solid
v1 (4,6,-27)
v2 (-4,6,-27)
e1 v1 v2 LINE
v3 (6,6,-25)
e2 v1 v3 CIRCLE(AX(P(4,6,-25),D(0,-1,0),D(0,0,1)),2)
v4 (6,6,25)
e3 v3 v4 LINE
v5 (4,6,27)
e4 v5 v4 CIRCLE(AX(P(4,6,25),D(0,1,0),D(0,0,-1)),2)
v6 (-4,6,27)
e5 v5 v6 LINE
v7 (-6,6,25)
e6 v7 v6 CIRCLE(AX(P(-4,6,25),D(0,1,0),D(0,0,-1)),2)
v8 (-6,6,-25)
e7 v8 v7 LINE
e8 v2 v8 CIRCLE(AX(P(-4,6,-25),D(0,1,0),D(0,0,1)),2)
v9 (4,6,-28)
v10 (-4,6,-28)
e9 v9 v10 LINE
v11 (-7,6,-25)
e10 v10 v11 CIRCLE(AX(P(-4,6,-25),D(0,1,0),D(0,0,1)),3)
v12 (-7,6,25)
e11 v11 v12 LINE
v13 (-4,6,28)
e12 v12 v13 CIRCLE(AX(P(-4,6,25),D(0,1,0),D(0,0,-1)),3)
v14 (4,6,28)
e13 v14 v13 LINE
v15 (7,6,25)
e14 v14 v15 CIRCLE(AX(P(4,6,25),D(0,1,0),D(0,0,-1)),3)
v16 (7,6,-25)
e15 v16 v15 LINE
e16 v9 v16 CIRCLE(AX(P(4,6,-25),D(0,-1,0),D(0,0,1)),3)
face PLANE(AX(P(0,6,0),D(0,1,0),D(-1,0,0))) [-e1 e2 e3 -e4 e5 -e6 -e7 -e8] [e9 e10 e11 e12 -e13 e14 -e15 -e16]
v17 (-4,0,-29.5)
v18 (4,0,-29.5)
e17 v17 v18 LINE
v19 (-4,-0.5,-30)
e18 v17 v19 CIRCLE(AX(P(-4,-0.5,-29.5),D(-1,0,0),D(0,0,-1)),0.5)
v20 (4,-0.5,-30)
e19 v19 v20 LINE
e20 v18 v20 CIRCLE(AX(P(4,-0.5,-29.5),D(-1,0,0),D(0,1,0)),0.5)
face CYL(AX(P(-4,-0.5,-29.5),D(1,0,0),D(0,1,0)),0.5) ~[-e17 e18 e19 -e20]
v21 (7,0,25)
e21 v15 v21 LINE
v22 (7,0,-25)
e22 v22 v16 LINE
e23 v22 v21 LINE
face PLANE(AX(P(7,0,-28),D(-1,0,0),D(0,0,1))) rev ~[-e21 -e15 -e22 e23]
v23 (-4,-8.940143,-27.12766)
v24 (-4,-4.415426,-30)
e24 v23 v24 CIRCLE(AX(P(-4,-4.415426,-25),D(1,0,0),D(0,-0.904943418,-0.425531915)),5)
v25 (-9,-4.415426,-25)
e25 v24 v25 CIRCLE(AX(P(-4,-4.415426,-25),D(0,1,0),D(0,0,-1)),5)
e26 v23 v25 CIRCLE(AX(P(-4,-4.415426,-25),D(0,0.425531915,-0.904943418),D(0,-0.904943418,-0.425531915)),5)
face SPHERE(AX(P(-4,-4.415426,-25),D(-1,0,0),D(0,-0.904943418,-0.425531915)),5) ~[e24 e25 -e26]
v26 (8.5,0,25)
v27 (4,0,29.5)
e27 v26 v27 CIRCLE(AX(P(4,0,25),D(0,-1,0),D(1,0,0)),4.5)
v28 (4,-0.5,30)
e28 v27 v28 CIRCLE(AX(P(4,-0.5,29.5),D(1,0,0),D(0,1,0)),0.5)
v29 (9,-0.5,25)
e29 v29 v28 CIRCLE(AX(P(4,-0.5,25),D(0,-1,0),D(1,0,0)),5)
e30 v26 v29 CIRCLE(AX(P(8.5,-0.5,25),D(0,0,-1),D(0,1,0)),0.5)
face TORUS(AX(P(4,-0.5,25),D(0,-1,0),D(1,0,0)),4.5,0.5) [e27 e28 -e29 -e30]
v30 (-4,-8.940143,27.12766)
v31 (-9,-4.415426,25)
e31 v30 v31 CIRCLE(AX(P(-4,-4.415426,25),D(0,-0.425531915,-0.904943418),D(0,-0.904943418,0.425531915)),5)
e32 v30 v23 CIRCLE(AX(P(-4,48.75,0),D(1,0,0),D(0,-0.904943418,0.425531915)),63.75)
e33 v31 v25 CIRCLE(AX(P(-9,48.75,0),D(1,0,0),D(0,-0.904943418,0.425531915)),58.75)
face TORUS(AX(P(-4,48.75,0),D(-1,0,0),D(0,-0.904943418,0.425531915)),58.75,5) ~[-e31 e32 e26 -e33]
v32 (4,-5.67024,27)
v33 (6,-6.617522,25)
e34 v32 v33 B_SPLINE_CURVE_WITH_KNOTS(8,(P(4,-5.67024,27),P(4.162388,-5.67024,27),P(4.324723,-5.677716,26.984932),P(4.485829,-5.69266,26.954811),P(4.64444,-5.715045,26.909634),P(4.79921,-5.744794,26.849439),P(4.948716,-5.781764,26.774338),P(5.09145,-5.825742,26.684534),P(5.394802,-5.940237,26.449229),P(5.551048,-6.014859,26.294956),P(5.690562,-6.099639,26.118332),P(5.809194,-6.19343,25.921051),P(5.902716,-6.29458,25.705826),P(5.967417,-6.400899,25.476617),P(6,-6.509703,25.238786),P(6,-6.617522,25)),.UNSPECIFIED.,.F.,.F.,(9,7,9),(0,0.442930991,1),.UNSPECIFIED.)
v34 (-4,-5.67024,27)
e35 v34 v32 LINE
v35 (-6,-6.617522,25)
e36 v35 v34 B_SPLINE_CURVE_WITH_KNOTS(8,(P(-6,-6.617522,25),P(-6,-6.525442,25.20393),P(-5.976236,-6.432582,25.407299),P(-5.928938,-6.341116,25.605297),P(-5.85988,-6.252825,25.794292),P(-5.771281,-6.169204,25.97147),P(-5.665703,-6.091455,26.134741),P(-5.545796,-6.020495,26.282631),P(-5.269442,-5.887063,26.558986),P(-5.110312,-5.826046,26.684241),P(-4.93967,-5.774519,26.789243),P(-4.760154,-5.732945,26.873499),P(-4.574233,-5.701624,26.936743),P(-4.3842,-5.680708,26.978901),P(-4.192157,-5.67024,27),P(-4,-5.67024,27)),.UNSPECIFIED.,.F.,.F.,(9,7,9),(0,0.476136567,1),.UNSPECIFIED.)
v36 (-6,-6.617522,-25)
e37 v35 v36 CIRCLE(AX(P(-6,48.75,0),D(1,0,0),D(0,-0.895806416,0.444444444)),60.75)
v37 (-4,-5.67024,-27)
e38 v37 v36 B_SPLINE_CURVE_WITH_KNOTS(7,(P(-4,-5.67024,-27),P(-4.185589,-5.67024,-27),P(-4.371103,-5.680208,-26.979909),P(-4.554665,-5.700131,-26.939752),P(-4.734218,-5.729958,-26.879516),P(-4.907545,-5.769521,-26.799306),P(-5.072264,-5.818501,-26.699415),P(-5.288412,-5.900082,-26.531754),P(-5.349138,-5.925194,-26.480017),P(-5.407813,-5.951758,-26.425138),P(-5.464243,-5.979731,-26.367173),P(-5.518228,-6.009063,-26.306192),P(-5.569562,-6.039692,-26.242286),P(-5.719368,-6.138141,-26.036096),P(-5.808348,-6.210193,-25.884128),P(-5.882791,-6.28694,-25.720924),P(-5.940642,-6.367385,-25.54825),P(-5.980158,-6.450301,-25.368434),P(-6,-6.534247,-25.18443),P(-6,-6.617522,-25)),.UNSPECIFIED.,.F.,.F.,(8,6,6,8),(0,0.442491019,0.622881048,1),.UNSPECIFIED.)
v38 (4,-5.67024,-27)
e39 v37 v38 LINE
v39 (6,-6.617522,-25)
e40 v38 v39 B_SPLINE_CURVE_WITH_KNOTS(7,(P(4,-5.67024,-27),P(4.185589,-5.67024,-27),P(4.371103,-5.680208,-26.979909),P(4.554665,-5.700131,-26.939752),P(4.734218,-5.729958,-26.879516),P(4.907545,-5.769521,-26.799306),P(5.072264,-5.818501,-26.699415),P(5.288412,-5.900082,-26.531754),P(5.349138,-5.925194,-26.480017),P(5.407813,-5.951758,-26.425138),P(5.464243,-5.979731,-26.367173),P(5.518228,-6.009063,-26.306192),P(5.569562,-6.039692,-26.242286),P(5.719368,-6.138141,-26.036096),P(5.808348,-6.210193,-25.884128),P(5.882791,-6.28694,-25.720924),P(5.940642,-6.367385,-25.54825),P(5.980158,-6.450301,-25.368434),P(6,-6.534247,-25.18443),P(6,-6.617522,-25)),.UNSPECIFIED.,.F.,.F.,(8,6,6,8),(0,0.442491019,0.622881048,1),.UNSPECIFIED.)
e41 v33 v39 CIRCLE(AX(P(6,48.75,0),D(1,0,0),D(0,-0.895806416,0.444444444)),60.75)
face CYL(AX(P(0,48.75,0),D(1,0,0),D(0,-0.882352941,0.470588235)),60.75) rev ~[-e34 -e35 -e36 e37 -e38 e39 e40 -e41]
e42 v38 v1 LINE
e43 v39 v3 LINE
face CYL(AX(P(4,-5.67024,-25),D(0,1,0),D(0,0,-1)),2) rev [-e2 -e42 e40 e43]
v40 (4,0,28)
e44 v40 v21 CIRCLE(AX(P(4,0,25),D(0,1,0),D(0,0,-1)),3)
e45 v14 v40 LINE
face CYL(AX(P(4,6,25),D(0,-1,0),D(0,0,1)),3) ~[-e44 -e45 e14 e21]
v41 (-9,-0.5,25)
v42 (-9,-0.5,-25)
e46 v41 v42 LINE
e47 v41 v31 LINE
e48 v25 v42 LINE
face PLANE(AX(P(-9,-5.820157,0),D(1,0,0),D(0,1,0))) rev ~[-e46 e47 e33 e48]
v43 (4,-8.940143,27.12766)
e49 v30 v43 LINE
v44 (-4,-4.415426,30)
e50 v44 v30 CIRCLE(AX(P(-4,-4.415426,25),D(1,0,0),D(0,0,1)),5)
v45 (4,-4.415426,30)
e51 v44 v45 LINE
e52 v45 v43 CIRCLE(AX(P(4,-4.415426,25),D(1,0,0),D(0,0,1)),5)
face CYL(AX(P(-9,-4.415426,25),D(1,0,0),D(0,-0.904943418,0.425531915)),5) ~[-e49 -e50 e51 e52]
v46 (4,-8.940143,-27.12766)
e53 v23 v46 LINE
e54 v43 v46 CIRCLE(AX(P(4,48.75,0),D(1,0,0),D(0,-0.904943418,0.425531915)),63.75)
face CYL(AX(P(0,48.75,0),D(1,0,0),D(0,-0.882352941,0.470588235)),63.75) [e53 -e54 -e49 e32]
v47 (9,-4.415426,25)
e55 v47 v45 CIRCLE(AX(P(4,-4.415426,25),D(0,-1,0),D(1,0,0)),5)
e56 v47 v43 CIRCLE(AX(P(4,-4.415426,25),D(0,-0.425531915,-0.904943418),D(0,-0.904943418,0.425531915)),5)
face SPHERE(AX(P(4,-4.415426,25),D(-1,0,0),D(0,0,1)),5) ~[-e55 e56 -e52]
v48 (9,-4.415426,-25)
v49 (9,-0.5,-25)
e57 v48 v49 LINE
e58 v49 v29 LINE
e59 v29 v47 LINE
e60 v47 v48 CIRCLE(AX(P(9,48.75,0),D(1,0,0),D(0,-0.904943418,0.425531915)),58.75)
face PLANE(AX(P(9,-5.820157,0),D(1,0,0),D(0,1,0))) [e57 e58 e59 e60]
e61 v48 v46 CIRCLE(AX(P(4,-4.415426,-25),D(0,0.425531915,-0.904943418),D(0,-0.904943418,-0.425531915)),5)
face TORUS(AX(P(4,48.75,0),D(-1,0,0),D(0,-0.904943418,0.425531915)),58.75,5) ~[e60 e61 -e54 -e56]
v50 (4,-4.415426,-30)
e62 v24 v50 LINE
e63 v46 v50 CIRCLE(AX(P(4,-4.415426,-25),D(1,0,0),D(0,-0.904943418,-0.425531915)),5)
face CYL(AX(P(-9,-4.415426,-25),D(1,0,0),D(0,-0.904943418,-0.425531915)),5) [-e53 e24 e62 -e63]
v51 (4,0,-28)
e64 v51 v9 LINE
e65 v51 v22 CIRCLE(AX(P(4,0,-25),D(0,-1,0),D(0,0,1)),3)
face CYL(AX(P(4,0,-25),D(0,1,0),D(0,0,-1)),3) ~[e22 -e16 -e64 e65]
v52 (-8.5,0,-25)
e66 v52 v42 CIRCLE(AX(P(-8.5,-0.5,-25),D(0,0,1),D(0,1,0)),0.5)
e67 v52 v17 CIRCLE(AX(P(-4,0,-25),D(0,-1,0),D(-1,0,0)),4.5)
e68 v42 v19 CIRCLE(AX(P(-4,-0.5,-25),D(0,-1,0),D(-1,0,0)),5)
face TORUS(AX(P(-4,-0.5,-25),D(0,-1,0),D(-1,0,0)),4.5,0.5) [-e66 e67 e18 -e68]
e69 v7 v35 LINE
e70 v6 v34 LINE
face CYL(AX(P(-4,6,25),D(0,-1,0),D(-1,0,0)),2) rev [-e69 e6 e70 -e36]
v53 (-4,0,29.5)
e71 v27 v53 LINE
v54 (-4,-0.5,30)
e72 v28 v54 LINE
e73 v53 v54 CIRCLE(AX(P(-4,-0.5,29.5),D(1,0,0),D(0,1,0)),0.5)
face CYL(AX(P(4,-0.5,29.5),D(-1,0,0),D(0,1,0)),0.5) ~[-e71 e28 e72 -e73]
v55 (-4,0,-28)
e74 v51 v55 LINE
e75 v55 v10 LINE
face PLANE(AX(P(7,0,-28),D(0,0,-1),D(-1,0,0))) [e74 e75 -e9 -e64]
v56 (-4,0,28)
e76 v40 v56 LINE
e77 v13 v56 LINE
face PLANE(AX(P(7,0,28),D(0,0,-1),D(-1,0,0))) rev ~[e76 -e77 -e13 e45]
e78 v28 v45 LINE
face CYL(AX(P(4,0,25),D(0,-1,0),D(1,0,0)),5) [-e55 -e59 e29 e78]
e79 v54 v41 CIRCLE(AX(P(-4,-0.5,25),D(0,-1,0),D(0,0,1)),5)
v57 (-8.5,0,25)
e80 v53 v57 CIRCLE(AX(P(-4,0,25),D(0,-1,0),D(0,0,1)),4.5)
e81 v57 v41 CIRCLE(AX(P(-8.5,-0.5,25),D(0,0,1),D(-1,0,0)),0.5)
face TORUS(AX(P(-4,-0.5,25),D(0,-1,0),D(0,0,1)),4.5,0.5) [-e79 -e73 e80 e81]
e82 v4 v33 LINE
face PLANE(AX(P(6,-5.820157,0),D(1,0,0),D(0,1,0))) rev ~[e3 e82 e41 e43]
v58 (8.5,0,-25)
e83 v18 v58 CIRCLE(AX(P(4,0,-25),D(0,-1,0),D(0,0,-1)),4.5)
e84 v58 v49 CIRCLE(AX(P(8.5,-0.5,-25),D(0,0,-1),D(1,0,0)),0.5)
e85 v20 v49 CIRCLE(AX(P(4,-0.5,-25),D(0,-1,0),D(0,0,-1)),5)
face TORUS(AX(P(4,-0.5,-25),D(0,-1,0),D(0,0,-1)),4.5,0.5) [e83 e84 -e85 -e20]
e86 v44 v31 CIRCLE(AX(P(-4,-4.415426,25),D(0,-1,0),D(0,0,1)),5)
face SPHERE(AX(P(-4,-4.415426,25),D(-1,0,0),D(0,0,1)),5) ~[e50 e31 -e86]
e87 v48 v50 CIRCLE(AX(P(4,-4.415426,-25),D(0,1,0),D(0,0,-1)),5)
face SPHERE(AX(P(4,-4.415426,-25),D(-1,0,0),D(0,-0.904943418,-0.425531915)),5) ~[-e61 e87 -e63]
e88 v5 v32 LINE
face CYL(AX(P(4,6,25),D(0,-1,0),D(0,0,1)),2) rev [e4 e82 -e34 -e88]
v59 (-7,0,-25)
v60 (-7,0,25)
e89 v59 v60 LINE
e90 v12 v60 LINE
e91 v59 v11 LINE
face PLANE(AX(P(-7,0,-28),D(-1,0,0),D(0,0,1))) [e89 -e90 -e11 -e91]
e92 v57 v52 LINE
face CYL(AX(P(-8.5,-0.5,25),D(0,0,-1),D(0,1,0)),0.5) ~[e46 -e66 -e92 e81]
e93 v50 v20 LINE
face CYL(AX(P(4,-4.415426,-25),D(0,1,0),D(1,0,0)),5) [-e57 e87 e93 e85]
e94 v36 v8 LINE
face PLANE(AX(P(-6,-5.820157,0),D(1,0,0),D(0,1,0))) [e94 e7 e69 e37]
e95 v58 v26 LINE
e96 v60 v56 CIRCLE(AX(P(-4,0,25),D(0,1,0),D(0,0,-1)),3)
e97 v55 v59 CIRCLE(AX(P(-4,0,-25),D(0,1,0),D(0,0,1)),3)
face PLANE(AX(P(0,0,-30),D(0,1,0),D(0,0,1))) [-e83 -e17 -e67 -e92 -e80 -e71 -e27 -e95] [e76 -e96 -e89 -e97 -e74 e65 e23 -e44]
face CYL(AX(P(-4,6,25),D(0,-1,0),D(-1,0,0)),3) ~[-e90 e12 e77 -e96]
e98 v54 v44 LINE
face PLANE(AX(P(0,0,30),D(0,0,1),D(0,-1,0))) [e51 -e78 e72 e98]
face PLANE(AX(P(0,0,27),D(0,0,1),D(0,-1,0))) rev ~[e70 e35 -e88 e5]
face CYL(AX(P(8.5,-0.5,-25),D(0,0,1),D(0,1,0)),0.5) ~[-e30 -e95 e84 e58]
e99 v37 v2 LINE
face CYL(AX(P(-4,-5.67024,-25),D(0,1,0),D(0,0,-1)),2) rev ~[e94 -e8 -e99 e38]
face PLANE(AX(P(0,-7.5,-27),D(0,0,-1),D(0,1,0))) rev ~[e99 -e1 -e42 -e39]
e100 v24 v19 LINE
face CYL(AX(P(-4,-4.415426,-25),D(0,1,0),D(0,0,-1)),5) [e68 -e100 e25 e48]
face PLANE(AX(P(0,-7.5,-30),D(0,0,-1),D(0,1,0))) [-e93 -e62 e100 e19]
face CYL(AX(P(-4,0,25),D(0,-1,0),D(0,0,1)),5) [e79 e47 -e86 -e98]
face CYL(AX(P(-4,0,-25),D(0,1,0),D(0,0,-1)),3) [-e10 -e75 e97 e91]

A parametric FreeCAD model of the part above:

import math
import FreeCAD as App
import Part
import Sketcher
from FreeCAD import Vector
Q = App.Units.Quantity


def edges_at(feature, points):
    """Names of the edges that pass closest to the given points."""
    edges = feature.Shape.Edges
    near = lambda p: min(range(len(edges)), key=lambda i: edges[i].distToShape(Part.Vertex(*p))[0])
    return sorted({f"Edge{near(p) + 1}" for p in points})


def faces_at(feature, points):
    """Names of the faces that lie closest to the given points."""
    faces = feature.Shape.Faces
    near = lambda p: min(range(len(faces)), key=lambda i: faces[i].distToShape(Part.Vertex(*p))[0])
    return sorted({f"Face{near(p) + 1}" for p in points})

doc = App.newDocument("Part")
body = doc.addObject("PartDesign::Body", "Body")

# Sketch on YZ plane
sketch1 = doc.addObject("Sketcher::SketchObject", "Sketch")
body.addObject(sketch1)
sketch1.AttachmentSupport = (doc.YZ_Plane, [""])
sketch1.MapMode = "FlatFace"
sketch1.addGeometry([
    Part.LineSegment(Vector(0, 30, 0), Vector(-8, 30, 0)),
    Part.ArcOfCircle(Part.Circle(Vector(49, 0, 0), Vector(0, 0, 1), 64), math.radians(152), math.radians(208)),
    Part.LineSegment(Vector(-8, -30, 0), Vector(0, -30, 0)),
    Part.LineSegment(Vector(0, -30, 0), Vector(0, 30, 0)),
], False)
sketch1.addConstraint([
    Sketcher.Constraint("Coincident", 0, 2, 1, 1),
    Sketcher.Constraint("Coincident", 1, 2, 2, 1),
    Sketcher.Constraint("Coincident", 2, 2, 3, 1),
    Sketcher.Constraint("Coincident", 3, 2, 0, 1),
    Sketcher.Constraint("Horizontal", 0),
    Sketcher.Constraint("Horizontal", 2),
    Sketcher.Constraint("Vertical", 3),
    Sketcher.Constraint("Symmetric", 2, 2, 3, 2, -1, 1),
    Sketcher.Constraint("PointOnObject", 1, 3, -1),
    Sketcher.Constraint("DistanceY", 3, 1, 3, 2, Q("60 mm")),
    Sketcher.Constraint("Radius", 1, Q("63.75 mm")),
    Sketcher.Constraint("DistanceX", 0, 2, 0, 1, Q("7.5 mm")),
])
pad1 = doc.addObject("PartDesign::Pad", "Pad")
body.addObject(pad1)
pad1.Profile = sketch1
pad1.Length = 18
pad1.Midplane = True
doc.recompute()

thickness = doc.addObject("PartDesign::Thickness", "Thickness")
body.addObject(thickness)
thickness.Base = (pad1, faces_at(pad1, [(0, 0, 0)]))
thickness.Value = 3
thickness.Reversed = True
thickness.Join = "Intersection"

# Sketch on XZ plane
sketch2 = doc.addObject("Sketcher::SketchObject", "Sketch001")
body.addObject(sketch2)
sketch2.AttachmentSupport = (doc.XZ_Plane, [""])
sketch2.MapMode = "FlatFace"
sketch2.addGeometry([
    Part.LineSegment(Vector(7, 28, 0), Vector(7, -28, 0)),  # 0
    Part.LineSegment(Vector(7, -28, 0), Vector(-7, -28, 0)),  # 1
    Part.LineSegment(Vector(-7, -28, 0), Vector(-7, 28, 0)),  # 2
    Part.LineSegment(Vector(-7, 28, 0), Vector(7, 28, 0)),  # 3
    Part.LineSegment(Vector(-6, -27, 0), Vector(6, -27, 0)),  # 4
    Part.LineSegment(Vector(6, -27, 0), Vector(6, 27, 0)),  # 5
    Part.LineSegment(Vector(6, 27, 0), Vector(-6, 27, 0)),  # 6
    Part.LineSegment(Vector(-6, 27, 0), Vector(-6, -27, 0)),  # 7
], False)
sketch2.addConstraint([
    Sketcher.Constraint("Coincident", 0, 2, 1, 1),
    Sketcher.Constraint("Coincident", 1, 2, 2, 1),
    Sketcher.Constraint("Coincident", 2, 2, 3, 1),
    Sketcher.Constraint("Coincident", 3, 2, 0, 1),
    Sketcher.Constraint("Coincident", 4, 2, 5, 1),
    Sketcher.Constraint("Coincident", 5, 2, 6, 1),
    Sketcher.Constraint("Coincident", 6, 2, 7, 1),
    Sketcher.Constraint("Coincident", 7, 2, 4, 1),
    Sketcher.Constraint("Vertical", 0),
    Sketcher.Constraint("Horizontal", 1),
    Sketcher.Constraint("Vertical", 2),
    Sketcher.Constraint("Horizontal", 3),
    Sketcher.Constraint("Horizontal", 4),
    Sketcher.Constraint("Vertical", 5),
    Sketcher.Constraint("Horizontal", 6),
    Sketcher.Constraint("Vertical", 7),
    Sketcher.Constraint("Symmetric", 0, 2, 2, 2, -1, 1),
    Sketcher.Constraint("Symmetric", 4, 2, 6, 2, -1, 1),
    Sketcher.Constraint("DistanceX", 1, 2, 1, 1, Q("14 mm")),
    Sketcher.Constraint("DistanceX", 4, 1, 4, 2, Q("12 mm")),
    Sketcher.Constraint("DistanceY", 0, 2, 0, 1, Q("56 mm")),
    Sketcher.Constraint("DistanceY", 5, 1, 5, 2, Q("54 mm")),
])
pad2 = doc.addObject("PartDesign::Pad", "Pad001")
body.addObject(pad2)
pad2.Profile = sketch2
pad2.Length = 12
pad2.Midplane = True
doc.recompute()

fillet = doc.addObject("PartDesign::Fillet", "Fillet")
body.addObject(fillet)
fillet.Base = (pad2, edges_at(pad2, [(0, -7.5, -30), (0, -7.5, 30)]))
fillet.Radius = 5
doc.recompute()

fillet2 = doc.addObject("PartDesign::Fillet", "Fillet001")
body.addObject(fillet2)
fillet2.Base = (fillet, edges_at(fillet, [
    (9, -2.208, 30),
    (-9, -2.208, -30),
    (9, -2.208, -30),
    (-9, -15, 0),
    (-9, -7.095, 29.221),
    (-9, -2.208, 30),
    (-9, -7.095, -29.221),
    (9, -15, 0),
    (9, -7.095, 29.221),
    (9, -7.095, -29.221),
]))
fillet2.Radius = 5
doc.recompute()

fillet3 = doc.addObject("PartDesign::Fillet", "Fillet002")
body.addObject(fillet3)
fillet3.Base = (fillet2, edges_at(fillet2, [
    (0, 0, 30),
    (-9, 0, 0),
    (9, 0, 0),
    (0, 0, -30),
    (7.536, 0, -28.536),
    (7.536, 0, 28.536),
    (-7.536, 0, -28.536),
    (-7.536, 0, 28.536),
]))
fillet3.Radius = 0.5
doc.recompute()

fillet4 = doc.addObject("PartDesign::Fillet", "Fillet003")
body.addObject(fillet4)
fillet4.Base = (fillet3, edges_at(fillet3, [
    (-7, 3, 28),
    (7, 3, 28),
    (7, 3, -28),
    (-7, 3, -28),
]))
fillet4.Radius = 3
doc.recompute()

fillet5 = doc.addObject("PartDesign::Fillet", "Fillet004")
body.addObject(fillet5)
fillet5.Base = (fillet4, edges_at(fillet4, [
    (-6, 0.165, 27),
    (-6, 0.165, -27),
    (6, 0.165, 27),
    (6, 0.165, -27),
]))
fillet5.Radius = 2

doc.recompute()
